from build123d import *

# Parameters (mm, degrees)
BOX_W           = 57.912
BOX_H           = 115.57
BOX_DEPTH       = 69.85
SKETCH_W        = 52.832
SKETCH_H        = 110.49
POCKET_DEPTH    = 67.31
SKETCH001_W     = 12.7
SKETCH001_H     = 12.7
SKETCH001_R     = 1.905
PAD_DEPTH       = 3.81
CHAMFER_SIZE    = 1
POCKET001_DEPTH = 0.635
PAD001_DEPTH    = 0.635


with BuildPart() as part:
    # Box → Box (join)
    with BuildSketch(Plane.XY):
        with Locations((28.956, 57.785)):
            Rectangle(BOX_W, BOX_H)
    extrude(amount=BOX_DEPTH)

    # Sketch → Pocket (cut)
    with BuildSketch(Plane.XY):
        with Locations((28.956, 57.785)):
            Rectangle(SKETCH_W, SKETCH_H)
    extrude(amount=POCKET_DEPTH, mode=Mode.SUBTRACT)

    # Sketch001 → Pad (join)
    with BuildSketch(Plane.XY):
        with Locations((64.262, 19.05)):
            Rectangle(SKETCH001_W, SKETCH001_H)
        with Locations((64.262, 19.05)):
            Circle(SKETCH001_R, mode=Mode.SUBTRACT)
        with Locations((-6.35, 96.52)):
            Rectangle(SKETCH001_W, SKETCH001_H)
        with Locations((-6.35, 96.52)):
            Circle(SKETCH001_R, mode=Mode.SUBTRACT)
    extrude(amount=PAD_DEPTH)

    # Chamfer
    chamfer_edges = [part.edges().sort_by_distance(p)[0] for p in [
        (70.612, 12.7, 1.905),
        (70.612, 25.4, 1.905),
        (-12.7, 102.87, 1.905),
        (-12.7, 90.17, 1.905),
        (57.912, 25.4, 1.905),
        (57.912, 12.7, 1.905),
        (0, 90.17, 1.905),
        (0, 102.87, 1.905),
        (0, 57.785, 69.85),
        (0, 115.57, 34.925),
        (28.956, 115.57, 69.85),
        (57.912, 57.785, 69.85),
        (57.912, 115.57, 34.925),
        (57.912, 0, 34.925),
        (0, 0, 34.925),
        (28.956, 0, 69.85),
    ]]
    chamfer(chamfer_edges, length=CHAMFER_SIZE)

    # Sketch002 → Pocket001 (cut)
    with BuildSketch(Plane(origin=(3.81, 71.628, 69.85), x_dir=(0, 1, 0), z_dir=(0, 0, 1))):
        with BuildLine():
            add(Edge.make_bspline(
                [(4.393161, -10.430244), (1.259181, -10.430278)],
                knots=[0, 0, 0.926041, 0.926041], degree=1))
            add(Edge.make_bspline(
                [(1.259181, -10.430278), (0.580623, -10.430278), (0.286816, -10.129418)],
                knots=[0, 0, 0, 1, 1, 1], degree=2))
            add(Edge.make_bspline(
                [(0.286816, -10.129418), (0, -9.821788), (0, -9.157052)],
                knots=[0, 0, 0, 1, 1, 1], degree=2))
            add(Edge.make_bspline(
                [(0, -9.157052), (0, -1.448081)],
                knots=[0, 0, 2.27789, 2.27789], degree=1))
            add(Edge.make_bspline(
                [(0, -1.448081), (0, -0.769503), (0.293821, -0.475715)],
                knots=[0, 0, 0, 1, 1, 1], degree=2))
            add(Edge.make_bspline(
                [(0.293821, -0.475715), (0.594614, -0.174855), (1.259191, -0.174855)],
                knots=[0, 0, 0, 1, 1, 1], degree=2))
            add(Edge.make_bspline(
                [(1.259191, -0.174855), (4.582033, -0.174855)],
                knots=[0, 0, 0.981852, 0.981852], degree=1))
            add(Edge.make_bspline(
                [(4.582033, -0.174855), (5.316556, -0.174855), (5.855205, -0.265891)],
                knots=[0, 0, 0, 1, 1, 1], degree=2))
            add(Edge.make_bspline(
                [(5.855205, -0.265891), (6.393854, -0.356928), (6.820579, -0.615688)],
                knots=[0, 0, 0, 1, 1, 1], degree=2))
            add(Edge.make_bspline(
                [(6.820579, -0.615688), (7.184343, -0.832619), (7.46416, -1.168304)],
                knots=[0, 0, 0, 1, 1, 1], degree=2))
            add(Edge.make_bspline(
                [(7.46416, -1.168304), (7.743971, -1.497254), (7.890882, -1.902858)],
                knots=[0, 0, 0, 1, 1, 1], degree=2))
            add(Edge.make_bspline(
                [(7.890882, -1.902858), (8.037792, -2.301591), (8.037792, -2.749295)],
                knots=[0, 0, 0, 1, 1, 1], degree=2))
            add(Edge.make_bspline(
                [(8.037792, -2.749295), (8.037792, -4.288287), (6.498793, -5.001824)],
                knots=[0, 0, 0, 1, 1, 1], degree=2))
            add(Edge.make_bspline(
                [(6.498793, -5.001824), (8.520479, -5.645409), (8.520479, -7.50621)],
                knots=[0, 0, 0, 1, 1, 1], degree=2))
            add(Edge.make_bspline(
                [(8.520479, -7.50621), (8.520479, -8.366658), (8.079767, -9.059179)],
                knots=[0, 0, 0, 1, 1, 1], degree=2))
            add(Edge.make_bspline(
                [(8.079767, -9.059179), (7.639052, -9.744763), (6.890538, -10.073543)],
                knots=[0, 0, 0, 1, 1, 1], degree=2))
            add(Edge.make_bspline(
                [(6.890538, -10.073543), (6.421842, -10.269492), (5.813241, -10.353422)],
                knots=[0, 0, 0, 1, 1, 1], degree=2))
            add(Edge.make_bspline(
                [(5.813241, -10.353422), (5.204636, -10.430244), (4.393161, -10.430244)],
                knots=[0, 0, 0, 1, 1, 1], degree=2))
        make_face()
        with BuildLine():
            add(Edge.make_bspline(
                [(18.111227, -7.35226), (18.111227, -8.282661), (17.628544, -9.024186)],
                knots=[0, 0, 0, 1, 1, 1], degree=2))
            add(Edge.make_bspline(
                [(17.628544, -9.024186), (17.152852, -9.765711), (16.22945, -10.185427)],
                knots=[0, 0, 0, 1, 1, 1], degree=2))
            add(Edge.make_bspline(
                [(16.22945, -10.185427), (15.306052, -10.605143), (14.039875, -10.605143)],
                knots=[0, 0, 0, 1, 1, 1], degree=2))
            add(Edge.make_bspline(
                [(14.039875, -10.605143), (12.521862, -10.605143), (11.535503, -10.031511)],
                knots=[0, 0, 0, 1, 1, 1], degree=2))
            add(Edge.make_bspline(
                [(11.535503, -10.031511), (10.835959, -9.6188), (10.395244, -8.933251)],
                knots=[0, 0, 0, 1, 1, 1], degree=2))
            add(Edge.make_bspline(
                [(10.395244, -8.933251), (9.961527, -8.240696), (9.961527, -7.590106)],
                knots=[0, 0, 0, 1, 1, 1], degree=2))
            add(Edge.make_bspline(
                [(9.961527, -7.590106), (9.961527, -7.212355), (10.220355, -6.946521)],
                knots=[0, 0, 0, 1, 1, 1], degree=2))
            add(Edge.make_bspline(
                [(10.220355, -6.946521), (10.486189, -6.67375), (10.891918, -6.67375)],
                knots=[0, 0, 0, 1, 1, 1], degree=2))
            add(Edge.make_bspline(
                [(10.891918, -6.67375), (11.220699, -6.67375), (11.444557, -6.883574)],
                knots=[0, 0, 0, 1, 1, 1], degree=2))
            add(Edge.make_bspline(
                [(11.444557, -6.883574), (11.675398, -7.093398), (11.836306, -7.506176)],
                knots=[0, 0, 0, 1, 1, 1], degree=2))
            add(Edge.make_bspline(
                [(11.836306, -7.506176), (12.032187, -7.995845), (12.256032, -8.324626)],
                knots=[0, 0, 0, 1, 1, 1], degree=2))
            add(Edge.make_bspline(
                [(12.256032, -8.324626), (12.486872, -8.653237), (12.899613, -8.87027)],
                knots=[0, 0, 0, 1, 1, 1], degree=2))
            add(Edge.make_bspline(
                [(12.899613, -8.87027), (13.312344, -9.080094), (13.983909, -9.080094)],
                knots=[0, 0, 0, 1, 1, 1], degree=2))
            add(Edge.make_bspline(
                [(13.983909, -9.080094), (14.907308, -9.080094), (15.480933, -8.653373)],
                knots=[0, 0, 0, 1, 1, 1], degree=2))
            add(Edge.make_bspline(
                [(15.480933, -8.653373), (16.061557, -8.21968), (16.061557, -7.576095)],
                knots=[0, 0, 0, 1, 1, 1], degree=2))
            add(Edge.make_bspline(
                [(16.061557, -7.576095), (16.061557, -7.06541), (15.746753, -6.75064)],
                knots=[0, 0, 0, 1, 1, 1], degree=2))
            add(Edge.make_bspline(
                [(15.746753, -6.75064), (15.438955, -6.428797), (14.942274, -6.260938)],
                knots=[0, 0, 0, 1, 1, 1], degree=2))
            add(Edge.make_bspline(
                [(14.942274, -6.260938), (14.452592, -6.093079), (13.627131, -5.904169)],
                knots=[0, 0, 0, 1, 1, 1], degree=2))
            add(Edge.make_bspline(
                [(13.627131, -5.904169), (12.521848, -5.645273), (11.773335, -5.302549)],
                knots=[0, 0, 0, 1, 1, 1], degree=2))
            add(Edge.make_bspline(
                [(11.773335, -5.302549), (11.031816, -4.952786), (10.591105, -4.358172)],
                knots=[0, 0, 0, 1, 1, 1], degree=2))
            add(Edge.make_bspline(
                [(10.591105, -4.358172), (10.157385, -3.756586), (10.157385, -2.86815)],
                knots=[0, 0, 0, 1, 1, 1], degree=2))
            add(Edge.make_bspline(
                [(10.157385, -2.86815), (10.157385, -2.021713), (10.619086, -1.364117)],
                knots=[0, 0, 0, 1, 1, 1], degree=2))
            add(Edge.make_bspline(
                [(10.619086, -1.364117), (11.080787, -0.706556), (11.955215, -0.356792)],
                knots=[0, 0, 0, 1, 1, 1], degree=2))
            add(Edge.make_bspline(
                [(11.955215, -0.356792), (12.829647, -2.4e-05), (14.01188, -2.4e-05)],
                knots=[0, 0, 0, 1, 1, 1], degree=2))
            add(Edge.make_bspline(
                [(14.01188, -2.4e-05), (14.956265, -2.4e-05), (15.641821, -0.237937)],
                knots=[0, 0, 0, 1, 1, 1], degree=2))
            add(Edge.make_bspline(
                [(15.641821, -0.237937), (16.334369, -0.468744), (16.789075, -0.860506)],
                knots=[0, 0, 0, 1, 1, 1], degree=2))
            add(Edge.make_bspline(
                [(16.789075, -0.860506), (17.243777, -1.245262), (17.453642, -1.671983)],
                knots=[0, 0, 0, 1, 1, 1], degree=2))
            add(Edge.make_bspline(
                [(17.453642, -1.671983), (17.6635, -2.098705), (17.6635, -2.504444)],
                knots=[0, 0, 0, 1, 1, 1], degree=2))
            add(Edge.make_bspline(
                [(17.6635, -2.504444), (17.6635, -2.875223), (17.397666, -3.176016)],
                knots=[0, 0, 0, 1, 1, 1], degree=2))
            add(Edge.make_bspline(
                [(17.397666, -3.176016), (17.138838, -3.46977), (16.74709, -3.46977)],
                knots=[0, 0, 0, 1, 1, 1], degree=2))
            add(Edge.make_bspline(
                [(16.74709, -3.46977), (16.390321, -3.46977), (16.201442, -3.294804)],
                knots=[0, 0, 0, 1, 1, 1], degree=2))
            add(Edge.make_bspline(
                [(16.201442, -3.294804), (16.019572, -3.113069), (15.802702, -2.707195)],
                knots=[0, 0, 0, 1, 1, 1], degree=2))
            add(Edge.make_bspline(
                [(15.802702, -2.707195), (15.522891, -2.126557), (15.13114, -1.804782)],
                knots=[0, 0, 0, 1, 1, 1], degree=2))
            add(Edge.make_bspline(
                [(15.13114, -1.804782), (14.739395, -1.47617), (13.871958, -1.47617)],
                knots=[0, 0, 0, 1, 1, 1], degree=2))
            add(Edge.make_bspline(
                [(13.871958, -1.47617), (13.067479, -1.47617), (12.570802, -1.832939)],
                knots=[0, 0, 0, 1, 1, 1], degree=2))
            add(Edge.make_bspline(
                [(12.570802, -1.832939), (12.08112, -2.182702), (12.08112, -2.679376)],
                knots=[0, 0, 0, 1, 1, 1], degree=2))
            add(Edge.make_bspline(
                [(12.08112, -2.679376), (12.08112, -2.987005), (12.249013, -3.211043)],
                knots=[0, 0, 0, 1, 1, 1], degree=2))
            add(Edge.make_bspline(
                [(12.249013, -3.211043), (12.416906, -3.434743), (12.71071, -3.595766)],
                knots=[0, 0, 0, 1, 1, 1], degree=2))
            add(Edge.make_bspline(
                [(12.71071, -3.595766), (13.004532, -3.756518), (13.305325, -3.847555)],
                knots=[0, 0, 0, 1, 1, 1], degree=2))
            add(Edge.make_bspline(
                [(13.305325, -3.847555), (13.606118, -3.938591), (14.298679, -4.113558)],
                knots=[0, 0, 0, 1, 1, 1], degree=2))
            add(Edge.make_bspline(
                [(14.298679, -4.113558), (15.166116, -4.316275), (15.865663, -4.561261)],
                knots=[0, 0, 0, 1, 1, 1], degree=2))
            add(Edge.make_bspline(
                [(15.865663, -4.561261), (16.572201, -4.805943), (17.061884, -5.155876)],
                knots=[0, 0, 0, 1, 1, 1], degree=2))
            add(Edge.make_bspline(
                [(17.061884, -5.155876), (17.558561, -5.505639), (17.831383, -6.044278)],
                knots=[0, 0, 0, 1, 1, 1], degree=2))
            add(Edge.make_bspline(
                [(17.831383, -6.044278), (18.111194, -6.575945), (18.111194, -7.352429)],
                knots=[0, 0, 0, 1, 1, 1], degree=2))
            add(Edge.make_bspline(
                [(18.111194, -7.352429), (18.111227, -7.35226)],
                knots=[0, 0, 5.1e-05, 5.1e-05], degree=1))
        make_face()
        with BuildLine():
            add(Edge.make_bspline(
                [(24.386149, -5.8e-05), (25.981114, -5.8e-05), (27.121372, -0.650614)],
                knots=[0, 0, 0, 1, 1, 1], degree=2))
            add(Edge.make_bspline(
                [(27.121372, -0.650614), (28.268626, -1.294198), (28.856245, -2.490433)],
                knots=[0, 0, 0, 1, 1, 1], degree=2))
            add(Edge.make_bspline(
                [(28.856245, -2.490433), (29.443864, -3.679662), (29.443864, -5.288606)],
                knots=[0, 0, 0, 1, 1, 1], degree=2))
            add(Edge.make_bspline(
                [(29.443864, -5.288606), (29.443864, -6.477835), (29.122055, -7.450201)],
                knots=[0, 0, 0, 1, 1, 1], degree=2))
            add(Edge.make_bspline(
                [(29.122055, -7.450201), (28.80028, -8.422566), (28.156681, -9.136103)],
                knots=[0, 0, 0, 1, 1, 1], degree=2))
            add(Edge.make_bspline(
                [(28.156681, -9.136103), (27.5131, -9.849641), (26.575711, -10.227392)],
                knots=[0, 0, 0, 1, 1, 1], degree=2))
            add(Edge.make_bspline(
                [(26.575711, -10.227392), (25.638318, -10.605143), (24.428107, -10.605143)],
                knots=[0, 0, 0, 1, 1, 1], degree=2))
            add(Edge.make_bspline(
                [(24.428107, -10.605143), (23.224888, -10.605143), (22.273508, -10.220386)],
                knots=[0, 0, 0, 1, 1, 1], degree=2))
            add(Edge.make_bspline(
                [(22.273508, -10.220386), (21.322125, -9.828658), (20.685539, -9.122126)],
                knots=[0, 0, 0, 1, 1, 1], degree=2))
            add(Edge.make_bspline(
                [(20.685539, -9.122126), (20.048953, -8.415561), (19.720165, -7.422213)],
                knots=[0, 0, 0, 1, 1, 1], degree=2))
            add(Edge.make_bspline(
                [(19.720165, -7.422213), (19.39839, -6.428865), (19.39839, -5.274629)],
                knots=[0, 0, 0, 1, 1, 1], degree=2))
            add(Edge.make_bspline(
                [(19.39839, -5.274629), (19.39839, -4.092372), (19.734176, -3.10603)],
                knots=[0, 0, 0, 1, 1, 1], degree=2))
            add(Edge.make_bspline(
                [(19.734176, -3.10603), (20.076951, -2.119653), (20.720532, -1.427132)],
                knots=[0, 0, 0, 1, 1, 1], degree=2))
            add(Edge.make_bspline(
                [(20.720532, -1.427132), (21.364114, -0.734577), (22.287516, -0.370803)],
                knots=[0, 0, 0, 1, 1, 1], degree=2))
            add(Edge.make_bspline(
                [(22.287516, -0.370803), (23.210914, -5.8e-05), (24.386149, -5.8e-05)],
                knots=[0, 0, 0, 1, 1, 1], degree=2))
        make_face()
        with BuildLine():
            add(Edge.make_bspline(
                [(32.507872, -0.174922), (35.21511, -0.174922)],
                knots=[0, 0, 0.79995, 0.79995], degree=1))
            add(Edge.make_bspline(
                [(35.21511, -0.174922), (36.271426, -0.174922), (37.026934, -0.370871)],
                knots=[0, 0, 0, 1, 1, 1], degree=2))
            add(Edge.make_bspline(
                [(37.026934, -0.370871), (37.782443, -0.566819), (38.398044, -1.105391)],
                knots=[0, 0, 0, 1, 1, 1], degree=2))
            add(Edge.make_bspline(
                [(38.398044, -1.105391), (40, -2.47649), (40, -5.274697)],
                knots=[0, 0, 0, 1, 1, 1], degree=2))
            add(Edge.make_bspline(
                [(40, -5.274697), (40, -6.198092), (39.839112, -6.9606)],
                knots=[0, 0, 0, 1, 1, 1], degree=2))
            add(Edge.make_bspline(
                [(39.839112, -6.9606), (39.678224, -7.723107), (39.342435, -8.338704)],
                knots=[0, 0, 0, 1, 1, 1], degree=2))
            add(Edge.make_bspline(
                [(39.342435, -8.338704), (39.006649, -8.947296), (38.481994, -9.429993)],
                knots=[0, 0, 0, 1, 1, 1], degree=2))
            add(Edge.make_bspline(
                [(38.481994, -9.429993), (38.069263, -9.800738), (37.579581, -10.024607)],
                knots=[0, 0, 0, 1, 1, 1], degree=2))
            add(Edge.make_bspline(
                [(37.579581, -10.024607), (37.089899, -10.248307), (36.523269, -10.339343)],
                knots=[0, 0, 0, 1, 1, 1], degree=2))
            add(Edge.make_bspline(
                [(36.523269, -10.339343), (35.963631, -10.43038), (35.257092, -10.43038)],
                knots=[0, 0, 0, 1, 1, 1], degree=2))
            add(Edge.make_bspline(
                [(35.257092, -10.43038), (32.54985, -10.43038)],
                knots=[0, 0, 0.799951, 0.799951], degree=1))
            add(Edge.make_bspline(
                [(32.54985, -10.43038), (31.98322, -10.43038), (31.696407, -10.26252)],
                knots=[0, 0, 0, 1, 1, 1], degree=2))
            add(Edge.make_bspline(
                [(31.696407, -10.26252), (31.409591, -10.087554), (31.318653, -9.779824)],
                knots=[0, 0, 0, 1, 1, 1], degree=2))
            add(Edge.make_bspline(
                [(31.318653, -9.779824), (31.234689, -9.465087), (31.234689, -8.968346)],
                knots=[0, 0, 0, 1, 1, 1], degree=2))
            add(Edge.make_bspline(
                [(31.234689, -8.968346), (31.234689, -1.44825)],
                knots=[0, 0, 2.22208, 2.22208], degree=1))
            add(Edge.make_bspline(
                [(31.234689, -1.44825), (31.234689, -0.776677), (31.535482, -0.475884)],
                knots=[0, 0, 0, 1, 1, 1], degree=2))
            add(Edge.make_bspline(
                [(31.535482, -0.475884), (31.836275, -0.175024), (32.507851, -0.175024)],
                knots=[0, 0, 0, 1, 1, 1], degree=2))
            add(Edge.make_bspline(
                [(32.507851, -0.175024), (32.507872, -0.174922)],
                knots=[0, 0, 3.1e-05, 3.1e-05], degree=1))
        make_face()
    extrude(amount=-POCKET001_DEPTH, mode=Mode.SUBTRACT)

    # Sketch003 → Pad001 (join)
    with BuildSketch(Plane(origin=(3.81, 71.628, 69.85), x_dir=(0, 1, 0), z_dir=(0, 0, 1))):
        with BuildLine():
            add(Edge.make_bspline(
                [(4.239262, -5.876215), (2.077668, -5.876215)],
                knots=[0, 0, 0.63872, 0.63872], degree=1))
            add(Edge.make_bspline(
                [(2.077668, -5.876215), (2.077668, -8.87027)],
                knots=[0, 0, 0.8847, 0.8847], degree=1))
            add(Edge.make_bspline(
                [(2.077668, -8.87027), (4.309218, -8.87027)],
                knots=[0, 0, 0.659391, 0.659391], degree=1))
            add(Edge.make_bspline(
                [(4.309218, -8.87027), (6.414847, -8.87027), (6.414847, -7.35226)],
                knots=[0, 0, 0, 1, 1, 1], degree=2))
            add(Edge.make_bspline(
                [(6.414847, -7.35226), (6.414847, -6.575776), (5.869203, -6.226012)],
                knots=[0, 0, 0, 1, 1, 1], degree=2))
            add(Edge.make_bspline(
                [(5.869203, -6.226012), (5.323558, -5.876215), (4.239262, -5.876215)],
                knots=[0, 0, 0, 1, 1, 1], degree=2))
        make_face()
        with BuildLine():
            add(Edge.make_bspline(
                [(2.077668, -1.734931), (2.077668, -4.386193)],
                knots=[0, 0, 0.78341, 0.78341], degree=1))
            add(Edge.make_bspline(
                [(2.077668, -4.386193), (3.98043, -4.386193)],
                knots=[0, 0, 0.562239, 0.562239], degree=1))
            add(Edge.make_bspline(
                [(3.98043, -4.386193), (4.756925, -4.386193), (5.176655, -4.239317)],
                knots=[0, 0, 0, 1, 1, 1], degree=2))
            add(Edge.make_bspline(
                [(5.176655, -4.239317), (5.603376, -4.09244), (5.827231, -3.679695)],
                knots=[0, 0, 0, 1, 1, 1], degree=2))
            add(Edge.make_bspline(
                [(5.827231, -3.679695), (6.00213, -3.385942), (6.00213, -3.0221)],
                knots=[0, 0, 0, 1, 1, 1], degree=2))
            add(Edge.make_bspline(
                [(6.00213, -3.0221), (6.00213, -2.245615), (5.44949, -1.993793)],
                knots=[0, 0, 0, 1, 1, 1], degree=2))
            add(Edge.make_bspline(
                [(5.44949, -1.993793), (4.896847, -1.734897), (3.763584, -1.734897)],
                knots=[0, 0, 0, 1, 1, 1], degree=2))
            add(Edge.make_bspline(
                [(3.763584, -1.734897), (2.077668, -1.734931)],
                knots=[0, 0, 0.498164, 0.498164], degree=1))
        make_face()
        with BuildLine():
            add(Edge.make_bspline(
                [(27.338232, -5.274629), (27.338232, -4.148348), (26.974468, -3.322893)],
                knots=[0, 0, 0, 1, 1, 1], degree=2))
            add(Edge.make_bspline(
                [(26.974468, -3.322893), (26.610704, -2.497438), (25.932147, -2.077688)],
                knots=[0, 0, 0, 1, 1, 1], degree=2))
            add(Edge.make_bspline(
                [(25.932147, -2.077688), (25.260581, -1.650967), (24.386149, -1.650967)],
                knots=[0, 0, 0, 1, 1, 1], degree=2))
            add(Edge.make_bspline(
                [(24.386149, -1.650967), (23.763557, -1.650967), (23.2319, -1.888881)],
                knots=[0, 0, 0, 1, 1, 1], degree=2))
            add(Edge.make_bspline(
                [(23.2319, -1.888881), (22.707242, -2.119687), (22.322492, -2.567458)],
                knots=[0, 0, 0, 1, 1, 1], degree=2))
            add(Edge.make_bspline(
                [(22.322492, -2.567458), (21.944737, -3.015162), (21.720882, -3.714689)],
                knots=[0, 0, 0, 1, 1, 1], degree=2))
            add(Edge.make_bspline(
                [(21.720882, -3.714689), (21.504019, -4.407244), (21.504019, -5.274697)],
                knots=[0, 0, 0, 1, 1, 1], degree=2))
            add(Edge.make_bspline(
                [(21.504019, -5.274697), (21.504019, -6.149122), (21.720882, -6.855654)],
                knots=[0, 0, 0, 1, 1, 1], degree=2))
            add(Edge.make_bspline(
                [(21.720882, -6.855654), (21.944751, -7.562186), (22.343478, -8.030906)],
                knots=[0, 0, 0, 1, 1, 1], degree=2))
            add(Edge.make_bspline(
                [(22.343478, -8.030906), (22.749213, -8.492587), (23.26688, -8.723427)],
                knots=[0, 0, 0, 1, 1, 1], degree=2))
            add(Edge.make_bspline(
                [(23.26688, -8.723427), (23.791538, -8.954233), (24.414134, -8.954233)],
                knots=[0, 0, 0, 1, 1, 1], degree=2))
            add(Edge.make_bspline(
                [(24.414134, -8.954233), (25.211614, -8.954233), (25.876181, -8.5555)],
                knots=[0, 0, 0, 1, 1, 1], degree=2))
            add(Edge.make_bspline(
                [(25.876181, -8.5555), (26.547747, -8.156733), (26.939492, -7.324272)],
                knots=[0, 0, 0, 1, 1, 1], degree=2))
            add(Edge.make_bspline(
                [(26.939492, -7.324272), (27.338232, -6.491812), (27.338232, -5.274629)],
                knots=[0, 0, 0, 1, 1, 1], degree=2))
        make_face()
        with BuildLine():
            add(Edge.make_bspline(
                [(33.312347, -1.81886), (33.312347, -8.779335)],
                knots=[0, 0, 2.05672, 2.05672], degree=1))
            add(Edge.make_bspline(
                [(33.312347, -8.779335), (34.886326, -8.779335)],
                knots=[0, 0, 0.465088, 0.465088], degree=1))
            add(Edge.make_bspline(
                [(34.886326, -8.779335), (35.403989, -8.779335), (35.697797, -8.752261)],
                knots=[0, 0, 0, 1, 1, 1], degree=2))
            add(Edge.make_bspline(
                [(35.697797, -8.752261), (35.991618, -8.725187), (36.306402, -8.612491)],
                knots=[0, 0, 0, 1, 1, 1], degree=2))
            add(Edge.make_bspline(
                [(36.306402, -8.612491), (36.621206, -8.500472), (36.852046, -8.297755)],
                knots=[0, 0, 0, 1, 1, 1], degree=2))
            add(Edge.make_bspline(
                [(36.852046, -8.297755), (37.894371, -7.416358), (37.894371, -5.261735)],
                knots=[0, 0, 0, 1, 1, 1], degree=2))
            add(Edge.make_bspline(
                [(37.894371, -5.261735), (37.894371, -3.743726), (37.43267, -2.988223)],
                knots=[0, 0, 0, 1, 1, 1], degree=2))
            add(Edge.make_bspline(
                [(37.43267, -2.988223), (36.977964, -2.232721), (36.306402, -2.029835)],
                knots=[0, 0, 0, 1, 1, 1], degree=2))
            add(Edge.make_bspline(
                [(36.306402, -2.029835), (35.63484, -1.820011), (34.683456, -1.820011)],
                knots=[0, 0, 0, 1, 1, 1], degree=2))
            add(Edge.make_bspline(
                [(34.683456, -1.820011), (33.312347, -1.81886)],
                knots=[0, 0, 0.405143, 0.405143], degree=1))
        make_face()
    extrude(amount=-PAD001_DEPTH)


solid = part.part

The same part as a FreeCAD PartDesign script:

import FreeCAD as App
import Part
import Sketcher
from FreeCAD import Vector
Q = App.Units.Quantity


def edges_at(feature, points):
    """Names of the edges that pass closest to the given points."""
    edges = feature.Shape.Edges
    near = lambda p: min(range(len(edges)), key=lambda i: edges[i].distToShape(Part.Vertex(*p))[0])
    return sorted({f"Edge{near(p) + 1}" for p in points})


def add_polygon(sketch, points):
    """Adds a closed chain of lines whose ends are joined by coincident constraints."""
    first, n = sketch.GeometryCount, len(points)
    for a, b in zip(points, points[1:] + points[:1]):
        sketch.addGeometry(Part.LineSegment(App.Vector(*a, 0), App.Vector(*b, 0)), False)
    for i in range(n):
        sketch.addConstraint(Sketcher.Constraint("Coincident", first + i, 2, first + (i + 1) % n, 1))

doc = App.newDocument("Part")
body = doc.addObject("PartDesign::Body", "Body")

# Sketch on XY plane
sketch1 = body.newObject("Sketcher::SketchObject", "Sketch")
sketch1.AttachmentSupport = (doc.getObject("XY_Plane"), [""])
sketch1.MapMode = "FlatFace"
add_polygon(sketch1, [(0, 115.57), (0, 0), (57.912, 0), (57.912, 115.57)])  # lines 0-3
sketch1.addConstraint(Sketcher.Constraint("Vertical", 0))
sketch1.addConstraint(Sketcher.Constraint("Horizontal", 1))
sketch1.addConstraint(Sketcher.Constraint("Vertical", 2))
sketch1.addConstraint(Sketcher.Constraint("Horizontal", 3))
sketch1.addConstraint(Sketcher.Constraint("Coincident", 0, 2, -1, 1))
sketch1.addConstraint(Sketcher.Constraint("DistanceX", 1, 1, 1, 2, Q("2.28 in")))
sketch1.addConstraint(Sketcher.Constraint("DistanceY", 0, 2, 0, 1, Q("4.55 in")))
pad1 = body.newObject("PartDesign::Pad", "Pad")
pad1.Profile = sketch1
pad1.Length = Q("2.75 in")

# Sketch on XY plane
sketch2 = body.newObject("Sketcher::SketchObject", "Sketch001")
sketch2.AttachmentSupport = (doc.getObject("XY_Plane"), [""])
sketch2.MapMode = "FlatFace"
add_polygon(sketch2, [(2.54, 113.03), (2.54, 2.54), (55.372, 2.54), (55.372, 113.03)])  # lines 0-3
sketch2.addConstraint(Sketcher.Constraint("Vertical", 0))
sketch2.addConstraint(Sketcher.Constraint("Horizontal", 1))
sketch2.addConstraint(Sketcher.Constraint("Vertical", 2))
sketch2.addConstraint(Sketcher.Constraint("Horizontal", 3))
sketch2.addConstraint(Sketcher.Constraint("DistanceX", 1, 1, 1, 2, Q("2.08 in")))
sketch2.addConstraint(Sketcher.Constraint("DistanceY", 0, 2, 0, 1, Q("4.35 in")))
sketch2.addConstraint(Sketcher.Constraint("DistanceX", -1, 1, 0, 2, Q("0.1 in")))
sketch2.addConstraint(Sketcher.Constraint("DistanceY", -1, 1, 0, 2, Q("0.1 in")))
pocket1 = body.newObject("PartDesign::Pocket", "Pocket")
pocket1.Profile = sketch2
pocket1.Length = Q("2.65 in")
pocket1.Reversed = True

# Sketch on XY plane
sketch3 = body.newObject("Sketcher::SketchObject", "Sketch002")
sketch3.AttachmentSupport = (doc.getObject("XY_Plane"), [""])
sketch3.MapMode = "FlatFace"
add_polygon(sketch3, [(57.912, 25.4), (57.912, 12.7), (70.612, 12.7), (70.612, 25.4)])  # lines 0-3
sketch3.addGeometry(Part.Circle(Vector(64.262, 19.05, 0), Vector(0, 0, 1), 1.905), False)  # 4
add_polygon(sketch3, [(-12.7, 102.87), (-12.7, 90.17), (0, 90.17), (0, 102.87)])  # lines 5-8
sketch3.addGeometry(Part.Circle(Vector(-6.35, 96.52, 0), Vector(0, 0, 1), 1.905), False)  # 9
sketch3.addConstraint(Sketcher.Constraint("Vertical", 0))
sketch3.addConstraint(Sketcher.Constraint("Horizontal", 1))
sketch3.addConstraint(Sketcher.Constraint("Vertical", 2))
sketch3.addConstraint(Sketcher.Constraint("Horizontal", 3))
sketch3.addConstraint(Sketcher.Constraint("Vertical", 5))
sketch3.addConstraint(Sketcher.Constraint("Horizontal", 6))
sketch3.addConstraint(Sketcher.Constraint("Vertical", 7))
sketch3.addConstraint(Sketcher.Constraint("Horizontal", 8))
sketch3.addConstraint(Sketcher.Constraint("Equal", 4, 9))
sketch3.addConstraint(Sketcher.Constraint("PointOnObject", 6, 2, -2))
sketch3.addConstraint(Sketcher.Constraint("Equal", 3, 6))
sketch3.addConstraint(Sketcher.Constraint("Equal", 8, 0))
sketch3.addConstraint(Sketcher.Constraint("Equal", 2, 5))
sketch3.addConstraint(Sketcher.Constraint("Diameter", 4, Q("0.15 in")))
sketch3.addConstraint(Sketcher.Constraint("DistanceX", 1, 1, 1, 2, Q("0.5 in")))
sketch3.addConstraint(Sketcher.Constraint("DistanceY", -1, 1, 2, 2, Q("1 in")))
sketch3.addConstraint(Sketcher.Constraint("DistanceY", -1, 1, 9, 3, Q("3.8 in")))
sketch3.addConstraint(Sketcher.Constraint("DistanceY", 4, 3, 5, 2, Q("2.8 in")))
sketch3.addConstraint(Sketcher.Constraint("DistanceX", -1, 1, 4, 3, Q("2.53 in")))
sketch3.addConstraint(Sketcher.Constraint("DistanceY", -1, 1, 4, 3, Q("0.75 in")))
sketch3.addConstraint(Sketcher.Constraint("DistanceX", 9, 3, -1, 1, Q("0.25 in")))
sketch3.addConstraint(Sketcher.Constraint("DistanceX", -1, 1, 0, 2, Q("2.28 in")))
pad2 = body.newObject("PartDesign::Pad", "Pad001")
pad2.Profile = sketch3
pad2.Length = Q("0.15 in")
doc.recompute()

chamfer = body.newObject("PartDesign::Chamfer", "Chamfer")
chamfer.Base = (pad2, edges_at(pad2, [
    (70.612, 12.7, 1.905),
    (70.612, 25.4, 1.905),
    (-12.7, 102.87, 1.905),
    (-12.7, 90.17, 1.905),
    (57.912, 25.4, 1.905),
    (57.912, 12.7, 1.905),
    (0, 90.17, 1.905),
    (0, 102.87, 1.905),
    (0, 57.785, 69.85),
    (0, 115.57, 34.925),
    (28.956, 115.57, 69.85),
    (57.912, 57.785, 69.85),
    (57.912, 115.57, 34.925),
    (57.912, 0, 34.925),
    (0, 0, 34.925),
    (28.956, 0, 69.85),
]))
chamfer.Size = 1

# Sketch on XY plane
sketch4 = body.newObject("Sketcher::SketchObject", "Sketch003")
sketch4.AttachmentSupport = (doc.getObject("XY_Plane"), [""])
sketch4.MapMode = "FlatFace"
sketch4.AttachmentOffset = App.Placement(Vector(0, 0, 2.75 * 25.4), App.Rotation())
sketch4.addGeometry(Part.BSplineCurve([Vector(14.240244, 76.021161, 0), Vector(14.240278, 72.887181, 0)], [2, 2], [0, 0.926041], False, 1, [1, 1], False), False)
sketch4.addGeometry(Part.BSplineCurve([Vector(14.163422, 77.441241, 0), Vector(14.240244, 76.832636, 0), Vector(14.240244, 76.021161, 0)], [3, 3], [0, 1], False, 2, [1, 1, 1], False), False)
sketch4.addGeometry(Part.BSplineCurve([Vector(13.883543, 78.518538, 0), Vector(14.079492, 78.049842, 0), Vector(14.163422, 77.441241, 0)], [3, 3], [0, 1], False, 2, [1, 1, 1], False), False)
sketch4.addGeometry(Part.BSplineCurve([Vector(12.869179, 79.707767, 0), Vector(13.554763, 79.267052, 0), Vector(13.883543, 78.518538, 0)], [3, 3], [0, 1], False, 2, [1, 1, 1], False), False)
sketch4.addGeometry(Part.BSplineCurve([Vector(8.811824, 78.126793, 0), Vector(9.455409, 80.148479, 0), Vector(12.176658, 80.148479, 0), Vector(12.869179, 79.707767, 0)], [3, 1, 3], [0, 1, 1.462407318], False, 2, [1, 1, 1, 1], False), False)
sketch4.addGeometry(Part.BSplineCurve([Vector(5.712858, 79.518882, 0), Vector(6.111591, 79.665792, 0), Vector(8.098287, 79.665792, 0), Vector(8.811824, 78.126793, 0)], [3, 1, 3], [0, 1, 4.437521219], False, 2, [1, 1, 1, 1], False), False)
sketch4.addGeometry(Part.BSplineCurve([Vector(4.978304, 79.09216, 0), Vector(5.307254, 79.371971, 0), Vector(5.712858, 79.518882, 0)], [3, 3], [0, 1], False, 2, [1, 1, 1], False), False)
sketch4.addGeometry(Part.BSplineCurve([Vector(4.425688, 78.448579, 0), Vector(4.642619, 78.812343, 0), Vector(4.978304, 79.09216, 0)], [3, 3], [0, 1], False, 2, [1, 1, 1], False), False)
sketch4.addGeometry(Part.BSplineCurve([Vector(4.075891, 77.483205, 0), Vector(4.166928, 78.021854, 0), Vector(4.425688, 78.448579, 0)], [3, 3], [0, 1], False, 2, [1, 1, 1], False), False)
sketch4.addGeometry(Part.BSplineCurve([Vector(4.285715, 71.921821, 0), Vector(3.984855, 72.222614, 0), Vector(3.984855, 74.548612, 0), Vector(3.984855, 76.944556, 0), Vector(4.075891, 77.483205, 0)], [3, 1, 1, 3], [0, 1, 3.499967649, 4.605216551], False, 2, [1, 1, 1, 1, 1], False), False)
sketch4.addGeometry(Part.BSplineCurve([Vector(13.939418, 71.914816, 0), Vector(13.631788, 71.628, 0), Vector(9.112566, 71.628, 0), Vector(4.579503, 71.628, 0), Vector(4.285715, 71.921821, 0)], [3, 1, 1, 3], [0, 1, 6.798520766, 7.81934407], False, 2, [1, 1, 1, 1, 1], False), False)
sketch4.addGeometry(Part.BSplineCurve([Vector(14.240278, 72.887181, 0), Vector(14.240278, 72.208623, 0), Vector(13.939418, 71.914816, 0)], [3, 3], [0, 1], False, 2, [1, 1, 1], False), False)
sketch4.addGeometry(Part.BSplineCurve([Vector(11.16226, 89.739227, 0), Vector(12.092661, 89.739227, 0), Vector(12.834186, 89.256544, 0)], [3, 3], [0, 1], False, 2, [1, 1, 1], False), False)
sketch4.addGeometry(Part.BSplineCurve([Vector(11.162429, 89.739194, 0), Vector(11.16226, 89.739227, 0)], [2, 2], [0, 0.000051], False, 1, [1, 1], False), False)
sketch4.addGeometry(Part.BSplineCurve([Vector(9.854278, 89.459383, 0), Vector(10.385945, 89.739194, 0), Vector(11.162429, 89.739194, 0)], [3, 3], [0, 1], False, 2, [1, 1, 1], False), False)
sketch4.addGeometry(Part.BSplineCurve([Vector(8.965876, 88.689884, 0), Vector(9.315639, 89.186561, 0), Vector(9.854278, 89.459383, 0)], [3, 3], [0, 1], False, 2, [1, 1, 1], False), False)
sketch4.addGeometry(Part.BSplineCurve([Vector(8.371261, 87.493663, 0), Vector(8.615943, 88.200201, 0), Vector(8.965876, 88.689884, 0)], [3, 3], [0, 1], False, 2, [1, 1, 1], False), False)
sketch4.addGeometry(Part.BSplineCurve([Vector(7.923558, 85.926679, 0), Vector(8.126275, 86.794116, 0), Vector(8.371261, 87.493663, 0)], [3, 3], [0, 1], False, 2, [1, 1, 1], False), False)
sketch4.addGeometry(Part.BSplineCurve([Vector(7.657555, 84.933325, 0), Vector(7.748591, 85.234118, 0), Vector(7.923558, 85.926679, 0)], [3, 3], [0, 1], False, 2, [1, 1, 1], False), False)
sketch4.addGeometry(Part.BSplineCurve([Vector(7.405766, 84.33871, 0), Vector(7.566518, 84.632532, 0), Vector(7.657555, 84.933325, 0)], [3, 3], [0, 1], False, 2, [1, 1, 1], False), False)
sketch4.addGeometry(Part.BSplineCurve([Vector(7.021043, 83.877013, 0), Vector(7.244743, 84.044906, 0), Vector(7.405766, 84.33871, 0)], [3, 3], [0, 1], False, 2, [1, 1, 1], False), False)
sketch4.addGeometry(Part.BSplineCurve([Vector(5.642939, 84.198802, 0), Vector(5.992702, 83.70912, 0), Vector(6.797005, 83.70912, 0), Vector(7.021043, 83.877013, 0)], [3, 1, 3], [0, 1, 1.619378103], False, 2, [1, 1, 1, 1], False), False)
sketch4.addGeometry(Part.BSplineCurve([Vector(5.614782, 86.75914, 0), Vector(5.28617, 86.367395, 0), Vector(5.28617, 84.695479, 0), Vector(5.642939, 84.198802, 0)], [3, 1, 3], [0, 1, 1.927420666], False, 2, [1, 1, 1, 1], False), False)
sketch4.addGeometry(Part.BSplineCurve([Vector(6.517195, 87.430702, 0), Vector(5.936557, 87.150891, 0), Vector(5.614782, 86.75914, 0)], [3, 3], [0, 1], False, 2, [1, 1, 1], False), False)
sketch4.addGeometry(Part.BSplineCurve([Vector(7.104804, 87.829442, 0), Vector(6.923069, 87.647572, 0), Vector(6.517195, 87.430702, 0)], [3, 3], [0, 1], False, 2, [1, 1, 1], False), False)
sketch4.addGeometry(Part.BSplineCurve([Vector(6.986016, 89.025666, 0), Vector(7.27977, 88.766838, 0), Vector(7.27977, 88.018321, 0), Vector(7.104804, 87.829442, 0)], [3, 1, 3], [0, 1, 1.910710457], False, 2, [1, 1, 1, 1], False), False)
sketch4.addGeometry(Part.BSplineCurve([Vector(5.481983, 89.081642, 0), Vector(5.908705, 89.2915, 0), Vector(6.685223, 89.2915, 0), Vector(6.986016, 89.025666, 0)], [3, 1, 3], [0, 1, 1.913836235], False, 2, [1, 1, 1, 1], False), False)
sketch4.addGeometry(Part.BSplineCurve([Vector(4.670506, 88.417075, 0), Vector(5.055262, 88.871777, 0), Vector(5.481983, 89.081642, 0)], [3, 3], [0, 1], False, 2, [1, 1, 1], False), False)
sketch4.addGeometry(Part.BSplineCurve([Vector(4.047937, 87.269821, 0), Vector(4.278744, 87.962369, 0), Vector(4.670506, 88.417075, 0)], [3, 3], [0, 1], False, 2, [1, 1, 1], False), False)
sketch4.addGeometry(Part.BSplineCurve([Vector(4.166792, 83.583215, 0), Vector(3.810024, 84.457647, 0), Vector(3.810024, 86.584265, 0), Vector(4.047937, 87.269821, 0)], [3, 1, 3], [0, 1, 1.798814616], False, 2, [1, 1, 1, 1], False), False)
sketch4.addGeometry(Part.BSplineCurve([Vector(5.174117, 82.247086, 0), Vector(4.516556, 82.708787, 0), Vector(4.166792, 83.583215, 0)], [3, 3], [0, 1], False, 2, [1, 1, 1], False), False)
sketch4.addGeometry(Part.BSplineCurve([Vector(8.168172, 82.219105, 0), Vector(7.566586, 81.785385, 0), Vector(5.831713, 81.785385, 0), Vector(5.174117, 82.247086, 0)], [3, 1, 3], [0, 1, 1.952727039], False, 2, [1, 1, 1, 1], False), False)
sketch4.addGeometry(Part.BSplineCurve([Vector(9.112549, 83.401335, 0), Vector(8.762786, 82.659816, 0), Vector(8.168172, 82.219105, 0)], [3, 3], [0, 1], False, 2, [1, 1, 1], False), False)
sketch4.addGeometry(Part.BSplineCurve([Vector(9.714169, 85.255131, 0), Vector(9.455273, 84.149848, 0), Vector(9.112549, 83.401335, 0)], [3, 3], [0, 1], False, 2, [1, 1, 1], False), False)
sketch4.addGeometry(Part.BSplineCurve([Vector(10.070938, 86.570274, 0), Vector(9.903079, 86.080592, 0), Vector(9.714169, 85.255131, 0)], [3, 3], [0, 1], False, 2, [1, 1, 1], False), False)
sketch4.addGeometry(Part.BSplineCurve([Vector(10.56064, 87.374753, 0), Vector(10.238797, 87.066955, 0), Vector(10.070938, 86.570274, 0)], [3, 3], [0, 1], False, 2, [1, 1, 1], False), False)
sketch4.addGeometry(Part.BSplineCurve([Vector(12.463373, 87.108933, 0), Vector(12.02968, 87.689557, 0), Vector(10.87541, 87.689557, 0), Vector(10.56064, 87.374753, 0)], [3, 1, 3], [0, 1, 1.79350047], False, 2, [1, 1, 1, 1], False), False)
sketch4.addGeometry(Part.BSplineCurve([Vector(12.68027, 84.527613, 0), Vector(12.890094, 84.940344, 0), Vector(12.890094, 86.535308, 0), Vector(12.463373, 87.108933, 0)], [3, 1, 3], [0, 1, 2.374995719], False, 2, [1, 1, 1, 1], False), False)
sketch4.addGeometry(Part.BSplineCurve([Vector(12.134626, 83.884032, 0), Vector(12.463237, 84.114872, 0), Vector(12.68027, 84.527613, 0)], [3, 3], [0, 1], False, 2, [1, 1, 1], False), False)
sketch4.addGeometry(Part.BSplineCurve([Vector(11.316176, 83.464306, 0), Vector(11.805845, 83.660187, 0), Vector(12.134626, 83.884032, 0)], [3, 3], [0, 1], False, 2, [1, 1, 1], False), False)
sketch4.addGeometry(Part.BSplineCurve([Vector(10.693574, 83.072557, 0), Vector(10.903398, 83.303398, 0), Vector(11.316176, 83.464306, 0)], [3, 3], [0, 1], False, 2, [1, 1, 1], False), False)
sketch4.addGeometry(Part.BSplineCurve([Vector(10.756521, 81.848355, 0), Vector(10.48375, 82.114189, 0), Vector(10.48375, 82.848699, 0), Vector(10.693574, 83.072557, 0)], [3, 1, 3], [0, 1, 1.810346315], False, 2, [1, 1, 1, 1], False), False)
sketch4.addGeometry(Part.BSplineCurve([Vector(12.743251, 82.023244, 0), Vector(12.050696, 81.589527, 0), Vector(11.022355, 81.589527, 0), Vector(10.756521, 81.848355, 0)], [3, 1, 3], [0, 1, 1.580628353], False, 2, [1, 1, 1, 1], False), False)
sketch4.addGeometry(Part.BSplineCurve([Vector(13.841511, 83.163503, 0), Vector(13.4288, 82.463959, 0), Vector(12.743251, 82.023244, 0)], [3, 3], [0, 1], False, 2, [1, 1, 1], False), False)
sketch4.addGeometry(Part.BSplineCurve([Vector(13.995427, 87.85745, 0), Vector(14.415143, 86.934052, 0), Vector(14.415143, 84.149862, 0), Vector(13.841511, 83.163503, 0)], [3, 1, 3], [0, 1, 2.198894783], False, 2, [1, 1, 1, 1], False), False)
sketch4.addGeometry(Part.BSplineCurve([Vector(12.834186, 89.256544, 0), Vector(13.575711, 88.780852, 0), Vector(13.995427, 87.85745, 0)], [3, 3], [0, 1], False, 2, [1, 1, 1], False), False)
sketch4.addGeometry(Part.BSplineCurve([Vector(4.460614, 98.749372, 0), Vector(5.104198, 99.896626, 0), Vector(6.300433, 100.484245, 0)], [3, 3], [0, 1], False, 2, [1, 1, 1], False), False)
sketch4.addGeometry(Part.BSplineCurve([Vector(4.180803, 93.915516, 0), Vector(3.810058, 94.838914, 0), Vector(3.810058, 97.609114, 0), Vector(4.460614, 98.749372, 0)], [3, 1, 3], [0, 1, 2.357145592], False, 2, [1, 1, 1, 1], False), False)
sketch4.addGeometry(Part.BSplineCurve([Vector(5.237132, 92.348532, 0), Vector(4.544577, 92.992114, 0), Vector(4.180803, 93.915516, 0)], [3, 3], [0, 1], False, 2, [1, 1, 1], False), False)
sketch4.addGeometry(Part.BSplineCurve([Vector(6.91603, 91.362176, 0), Vector(5.929653, 91.704951, 0), Vector(5.237132, 92.348532, 0)], [3, 3], [0, 1], False, 2, [1, 1, 1], False), False)
sketch4.addGeometry(Part.BSplineCurve([Vector(11.232213, 91.348165, 0), Vector(10.238865, 91.02639, 0), Vector(7.902372, 91.02639, 0), Vector(6.91603, 91.362176, 0)], [3, 1, 3], [0, 1, 2.024276664], False, 2, [1, 1, 1, 1], False), False)
sketch4.addGeometry(Part.BSplineCurve([Vector(12.932126, 92.313539, 0), Vector(12.225561, 91.676953, 0), Vector(11.232213, 91.348165, 0)], [3, 3], [0, 1], False, 2, [1, 1, 1], False), False)
sketch4.addGeometry(Part.BSplineCurve([Vector(14.030386, 93.901508, 0), Vector(13.638658, 92.950125, 0), Vector(12.932126, 92.313539, 0)], [3, 3], [0, 1], False, 2, [1, 1, 1], False), False)
sketch4.addGeometry(Part.BSplineCurve([Vector(14.037392, 98.203711, 0), Vector(14.415143, 97.266318, 0), Vector(14.415143, 94.852888, 0), Vector(14.030386, 93.901508, 0)], [3, 1, 3], [0, 1, 1.994222495], False, 2, [1, 1, 1, 1], False), False)
sketch4.addGeometry(Part.BSplineCurve([Vector(12.946103, 99.784681, 0), Vector(13.659641, 99.1411, 0), Vector(14.037392, 98.203711, 0)], [3, 3], [0, 1], False, 2, [1, 1, 1], False), False)
sketch4.addGeometry(Part.BSplineCurve([Vector(11.260201, 100.750055, 0), Vector(12.232566, 100.42828, 0), Vector(12.946103, 99.784681, 0)], [3, 3], [0, 1], False, 2, [1, 1, 1], False), False)
sketch4.addGeometry(Part.BSplineCurve([Vector(6.300433, 100.484245, 0), Vector(7.489662, 101.071864, 0), Vector(10.287835, 101.071864, 0), Vector(11.260201, 100.750055, 0)], [3, 1, 3], [0, 1, 1.739136353], False, 2, [1, 1, 1, 1], False), False)
sketch4.addGeometry(Part.BSplineCurve([Vector(3.984922, 104.135872, 0), Vector(3.984922, 105.489491, 0), Vector(3.984922, 107.899426, 0), Vector(4.180871, 108.654934, 0)], [3, 1, 3], [0, 0.79995, 1.424202455], False, 2, [1, 1, 1, 1], False), False)
sketch4.addGeometry(Part.BSplineCurve([Vector(3.985024, 104.135851, 0), Vector(3.984922, 104.135872, 0)], [2, 2], [0, 0.000031], False, 1, [1, 1], False), False)
sketch4.addGeometry(Part.BSplineCurve([Vector(4.285884, 103.163482, 0), Vector(3.985024, 103.464275, 0), Vector(3.985024, 104.135851, 0)], [3, 3], [0, 1], False, 2, [1, 1, 1], False), False)
sketch4.addGeometry(Part.BSplineCurve([Vector(13.589824, 102.946653, 0), Vector(13.275087, 102.862689, 0), Vector(9.018298, 102.862689, 0), Vector(4.586677, 102.862689, 0), Vector(4.285884, 103.163482, 0)], [3, 1, 1, 3], [0, 1, 8.569433568, 9.921391631], False, 2, [1, 1, 1, 1, 1], False), False)
sketch4.addGeometry(Part.BSplineCurve([Vector(14.07252, 103.324407, 0), Vector(13.897554, 103.037591, 0), Vector(13.589824, 102.946653, 0)], [3, 3], [0, 1], False, 2, [1, 1, 1], False), False)
sketch4.addGeometry(Part.BSplineCurve([Vector(14.149343, 108.151269, 0), Vector(14.24038, 107.591631, 0), Vector(14.24038, 105.531471, 0), Vector(14.24038, 103.61122, 0), Vector(14.07252, 103.324407, 0)], [3, 1, 1, 3], [0, 1, 2.915847533, 3.717827324], False, 2, [1, 1, 1, 1, 1], False), False)
sketch4.addGeometry(Part.BSplineCurve([Vector(13.834607, 109.207581, 0), Vector(14.058307, 108.717899, 0), Vector(14.149343, 108.151269, 0)], [3, 3], [0, 1], False, 2, [1, 1, 1], False), False)
sketch4.addGeometry(Part.BSplineCurve([Vector(13.239993, 110.109994, 0), Vector(13.610738, 109.697263, 0), Vector(13.834607, 109.207581, 0)], [3, 3], [0, 1], False, 2, [1, 1, 1], False), False)
sketch4.addGeometry(Part.BSplineCurve([Vector(12.148704, 110.970435, 0), Vector(12.757296, 110.634649, 0), Vector(13.239993, 110.109994, 0)], [3, 3], [0, 1], False, 2, [1, 1, 1], False), False)
sketch4.addGeometry(Part.BSplineCurve([Vector(10.7706, 111.467112, 0), Vector(11.533107, 111.306224, 0), Vector(12.148704, 110.970435, 0)], [3, 3], [0, 1], False, 2, [1, 1, 1], False), False)
sketch4.addGeometry(Part.BSplineCurve([Vector(4.915391, 110.026044, 0), Vector(6.28649, 111.628, 0), Vector(10.008092, 111.628, 0), Vector(10.7706, 111.467112, 0)], [3, 1, 3], [0, 1, 1.329995243], False, 2, [1, 1, 1, 1], False), False)
sketch4.addGeometry(Part.BSplineCurve([Vector(4.180871, 108.654934, 0), Vector(4.376819, 109.410443, 0), Vector(4.915391, 110.026044, 0)], [3, 3], [0, 1], False, 2, [1, 1, 1], False), False)
sketch4.addConstraint(Sketcher.Constraint("Block", 0))
sketch4.addConstraint(Sketcher.Constraint("Block", 1))
sketch4.addConstraint(Sketcher.Constraint("Block", 2))
sketch4.addConstraint(Sketcher.Constraint("Block", 3))
sketch4.addConstraint(Sketcher.Constraint("Block", 4))
sketch4.addConstraint(Sketcher.Constraint("Block", 5))
sketch4.addConstraint(Sketcher.Constraint("Block", 6))
sketch4.addConstraint(Sketcher.Constraint("Block", 7))
sketch4.addConstraint(Sketcher.Constraint("Block", 8))
sketch4.addConstraint(Sketcher.Constraint("Block", 9))
sketch4.addConstraint(Sketcher.Constraint("Block", 10))
sketch4.addConstraint(Sketcher.Constraint("Block", 11))
sketch4.addConstraint(Sketcher.Constraint("Block", 12))
sketch4.addConstraint(Sketcher.Constraint("Block", 13))
sketch4.addConstraint(Sketcher.Constraint("Block", 14))
sketch4.addConstraint(Sketcher.Constraint("Block", 15))
sketch4.addConstraint(Sketcher.Constraint("Block", 16))
sketch4.addConstraint(Sketcher.Constraint("Block", 17))
sketch4.addConstraint(Sketcher.Constraint("Block", 18))
sketch4.addConstraint(Sketcher.Constraint("Block", 19))
sketch4.addConstraint(Sketcher.Constraint("Block", 20))
sketch4.addConstraint(Sketcher.Constraint("Block", 21))
sketch4.addConstraint(Sketcher.Constraint("Block", 22))
sketch4.addConstraint(Sketcher.Constraint("Block", 23))
sketch4.addConstraint(Sketcher.Constraint("Block", 24))
sketch4.addConstraint(Sketcher.Constraint("Block", 25))
sketch4.addConstraint(Sketcher.Constraint("Block", 26))
sketch4.addConstraint(Sketcher.Constraint("Block", 27))
sketch4.addConstraint(Sketcher.Constraint("Block", 28))
sketch4.addConstraint(Sketcher.Constraint("Block", 29))
sketch4.addConstraint(Sketcher.Constraint("Block", 30))
sketch4.addConstraint(Sketcher.Constraint("Block", 31))
sketch4.addConstraint(Sketcher.Constraint("Block", 32))
sketch4.addConstraint(Sketcher.Constraint("Block", 33))
sketch4.addConstraint(Sketcher.Constraint("Block", 34))
sketch4.addConstraint(Sketcher.Constraint("Block", 35))
sketch4.addConstraint(Sketcher.Constraint("Block", 36))
sketch4.addConstraint(Sketcher.Constraint("Block", 37))
sketch4.addConstraint(Sketcher.Constraint("Block", 38))
sketch4.addConstraint(Sketcher.Constraint("Block", 39))
sketch4.addConstraint(Sketcher.Constraint("Block", 40))
sketch4.addConstraint(Sketcher.Constraint("Block", 41))
sketch4.addConstraint(Sketcher.Constraint("Block", 42))
sketch4.addConstraint(Sketcher.Constraint("Block", 43))
sketch4.addConstraint(Sketcher.Constraint("Block", 44))
sketch4.addConstraint(Sketcher.Constraint("Block", 45))
sketch4.addConstraint(Sketcher.Constraint("Block", 46))
sketch4.addConstraint(Sketcher.Constraint("Block", 47))
sketch4.addConstraint(Sketcher.Constraint("Block", 48))
sketch4.addConstraint(Sketcher.Constraint("Block", 49))
sketch4.addConstraint(Sketcher.Constraint("Block", 50))
sketch4.addConstraint(Sketcher.Constraint("Block", 51))
sketch4.addConstraint(Sketcher.Constraint("Block", 52))
sketch4.addConstraint(Sketcher.Constraint("Block", 53))
sketch4.addConstraint(Sketcher.Constraint("Block", 54))
sketch4.addConstraint(Sketcher.Constraint("Block", 55))
sketch4.addConstraint(Sketcher.Constraint("Block", 56))
sketch4.addConstraint(Sketcher.Constraint("Block", 57))
sketch4.addConstraint(Sketcher.Constraint("Block", 58))
sketch4.addConstraint(Sketcher.Constraint("Block", 59))
sketch4.addConstraint(Sketcher.Constraint("Block", 60))
sketch4.addConstraint(Sketcher.Constraint("Block", 61))
sketch4.addConstraint(Sketcher.Constraint("Block", 62))
sketch4.addConstraint(Sketcher.Constraint("Block", 63))
sketch4.addConstraint(Sketcher.Constraint("Block", 64))
sketch4.addConstraint(Sketcher.Constraint("Block", 65))
sketch4.addConstraint(Sketcher.Constraint("Block", 66))
sketch4.addConstraint(Sketcher.Constraint("Block", 67))
sketch4.addConstraint(Sketcher.Constraint("Block", 68))
pocket2 = body.newObject("PartDesign::Pocket", "Pocket001")
pocket2.Profile = sketch4
pocket2.Length = Q("0.025 in")

# Sketch on XY plane
sketch5 = body.newObject("Sketcher::SketchObject", "Sketch004")
sketch5.AttachmentSupport = (doc.getObject("XY_Plane"), [""])
sketch5.MapMode = "FlatFace"
sketch5.AttachmentOffset = App.Placement(Vector(0, 0, 2.75 * 25.4), App.Rotation())
sketch5.addGeometry(Part.BSplineCurve([Vector(9.686215, 73.705668, 0), Vector(12.68027, 73.705668, 0)], [2, 2], [0, 0.8847], False, 1, [1, 1], False), False)
sketch5.addGeometry(Part.BSplineCurve([Vector(12.68027, 73.705668, 0), Vector(12.68027, 74.821443, 0), Vector(12.68027, 78.042847, 0), Vector(10.385776, 78.042847, 0), Vector(10.036012, 77.497203, 0)], [3, 1, 1, 3], [0, 0.659391, 1.903757303, 2.540268607], False, 2, [1, 1, 1, 1, 1], False), False)
sketch5.addGeometry(Part.BSplineCurve([Vector(10.036012, 77.497203, 0), Vector(9.686215, 76.951558, 0), Vector(9.686215, 74.786465, 0), Vector(9.686215, 73.705668, 0)], [3, 1, 3], [0, 1, 1.996773021], False, 2, [1, 1, 1, 1], False), False)
sketch5.addGeometry(Part.BSplineCurve([Vector(5.544931, 73.705668, 0), Vector(8.196193, 73.705668, 0)], [2, 2], [0, 0.78341], False, 1, [1, 1], False), False)
sketch5.addGeometry(Part.BSplineCurve([Vector(8.196193, 73.705668, 0), Vector(8.196193, 74.657049, 0), Vector(8.196193, 76.384925, 0), Vector(8.049317, 76.804655, 0)], [3, 1, 3], [0, 0.562239, 1.021125369], False, 2, [1, 1, 1, 1], False), False)
sketch5.addGeometry(Part.BSplineCurve([Vector(8.049317, 76.804655, 0), Vector(7.90244, 77.231376, 0), Vector(7.489695, 77.455231, 0)], [3, 3], [0, 1], False, 2, [1, 1, 1], False), False)
sketch5.addGeometry(Part.BSplineCurve([Vector(7.489695, 77.455231, 0), Vector(7.195942, 77.63013, 0), Vector(6.055615, 77.63013, 0), Vector(5.803793, 77.07749, 0)], [3, 1, 3], [0, 1, 3.134126901], False, 2, [1, 1, 1, 1], False), False)
sketch5.addGeometry(Part.BSplineCurve([Vector(5.803793, 77.07749, 0), Vector(5.544897, 76.524847, 0), Vector(5.544897, 75.391584, 0)], [3, 3], [0, 1], False, 2, [1, 1, 1], False), False)
sketch5.addGeometry(Part.BSplineCurve([Vector(5.544897, 75.391584, 0), Vector(5.544931, 73.705668, 0)], [2, 2], [0, 0.498164], False, 1, [1, 1], False), False)
sketch5.addGeometry(Part.BSplineCurve([Vector(5.887688, 97.560147, 0), Vector(5.460967, 96.888581, 0), Vector(5.460967, 95.391557, 0), Vector(5.698881, 94.8599, 0)], [3, 1, 3], [0, 1, 1.711995901], False, 2, [1, 1, 1, 1], False), False)
sketch5.addGeometry(Part.BSplineCurve([Vector(5.698881, 94.8599, 0), Vector(5.929687, 94.335242, 0), Vector(6.377458, 93.950492, 0)], [3, 3], [0, 1], False, 2, [1, 1, 1], False), False)
sketch5.addGeometry(Part.BSplineCurve([Vector(6.377458, 93.950492, 0), Vector(6.825162, 93.572737, 0), Vector(7.524689, 93.348882, 0)], [3, 3], [0, 1], False, 2, [1, 1, 1], False), False)
sketch5.addGeometry(Part.BSplineCurve([Vector(7.524689, 93.348882, 0), Vector(8.217244, 93.132019, 0), Vector(9.959122, 93.132019, 0), Vector(10.665654, 93.348882, 0)], [3, 1, 3], [0, 1, 2.008037323], False, 2, [1, 1, 1, 1], False), False)
sketch5.addGeometry(Part.BSplineCurve([Vector(10.665654, 93.348882, 0), Vector(11.372186, 93.572751, 0), Vector(11.840906, 93.971478, 0)], [3, 3], [0, 1], False, 2, [1, 1, 1], False), False)
sketch5.addGeometry(Part.BSplineCurve([Vector(11.840906, 93.971478, 0), Vector(12.302587, 94.377213, 0), Vector(12.533427, 94.89488, 0)], [3, 3], [0, 1], False, 2, [1, 1, 1], False), False)
sketch5.addGeometry(Part.BSplineCurve([Vector(12.533427, 94.89488, 0), Vector(12.764233, 95.419538, 0), Vector(12.764233, 96.839614, 0), Vector(12.3655, 97.504181, 0)], [3, 1, 3], [0, 1, 2.280894834], False, 2, [1, 1, 1, 1], False), False)
sketch5.addGeometry(Part.BSplineCurve([Vector(12.3655, 97.504181, 0), Vector(11.966733, 98.175747, 0), Vector(11.134272, 98.567492, 0)], [3, 3], [0, 1], False, 2, [1, 1, 1], False), False)
sketch5.addGeometry(Part.BSplineCurve([Vector(11.134272, 98.567492, 0), Vector(10.301812, 98.966232, 0), Vector(7.958348, 98.966232, 0), Vector(6.307438, 98.238704, 0), Vector(5.887688, 97.560147, 0)], [3, 1, 1, 3], [0, 1, 1.925317721, 2.850635443], False, 2, [1, 1, 1, 1, 1], False), False)
sketch5.addGeometry(Part.BSplineCurve([Vector(5.62886, 104.940347, 0), Vector(12.589335, 104.940347, 0)], [2, 2], [0, 2.05672], False, 1, [1, 1], False), False)
sketch5.addGeometry(Part.BSplineCurve([Vector(12.589335, 104.940347, 0), Vector(12.589335, 105.727337, 0), Vector(12.589335, 107.031989, 0), Vector(12.562261, 107.325797, 0)], [3, 1, 3], [0, 0.465088, 0.771011839], False, 2, [1, 1, 1, 1], False), False)
sketch5.addGeometry(Part.BSplineCurve([Vector(12.562261, 107.325797, 0), Vector(12.535187, 107.619618, 0), Vector(12.422491, 107.934402, 0)], [3, 3], [0, 1], False, 2, [1, 1, 1], False), False)
sketch5.addGeometry(Part.BSplineCurve([Vector(12.422491, 107.934402, 0), Vector(12.310472, 108.249206, 0), Vector(12.107755, 108.480046, 0)], [3, 3], [0, 1], False, 2, [1, 1, 1], False), False)
sketch5.addGeometry(Part.BSplineCurve([Vector(12.107755, 108.480046, 0), Vector(11.226358, 109.522371, 0), Vector(7.553726, 109.522371, 0), Vector(6.798223, 109.06067, 0)], [3, 1, 3], [0, 1, 1.704535782], False, 2, [1, 1, 1, 1], False), False)
sketch5.addGeometry(Part.BSplineCurve([Vector(6.798223, 109.06067, 0), Vector(6.042721, 108.605964, 0), Vector(5.839835, 107.934402, 0)], [3, 3], [0, 1], False, 2, [1, 1, 1], False), False)
sketch5.addGeometry(Part.BSplineCurve([Vector(5.839835, 107.934402, 0), Vector(5.630011, 107.26284, 0), Vector(5.630011, 106.311456, 0)], [3, 3], [0, 1], False, 2, [1, 1, 1], False), False)
sketch5.addGeometry(Part.BSplineCurve([Vector(5.630011, 106.311456, 0), Vector(5.62886, 104.940347, 0)], [2, 2], [0, 0.405143], False, 1, [1, 1], False), False)
sketch5.addConstraint(Sketcher.Constraint("Block", 0))
sketch5.addConstraint(Sketcher.Constraint("Block", 1))
sketch5.addConstraint(Sketcher.Constraint("Block", 2))
sketch5.addConstraint(Sketcher.Constraint("Block", 3))
sketch5.addConstraint(Sketcher.Constraint("Block", 4))
sketch5.addConstraint(Sketcher.Constraint("Block", 5))
sketch5.addConstraint(Sketcher.Constraint("Block", 6))
sketch5.addConstraint(Sketcher.Constraint("Block", 7))
sketch5.addConstraint(Sketcher.Constraint("Block", 8))
sketch5.addConstraint(Sketcher.Constraint("Block", 9))
sketch5.addConstraint(Sketcher.Constraint("Block", 10))
sketch5.addConstraint(Sketcher.Constraint("Block", 11))
sketch5.addConstraint(Sketcher.Constraint("Block", 12))
sketch5.addConstraint(Sketcher.Constraint("Block", 13))
sketch5.addConstraint(Sketcher.Constraint("Block", 14))
sketch5.addConstraint(Sketcher.Constraint("Block", 15))
sketch5.addConstraint(Sketcher.Constraint("Block", 16))
sketch5.addConstraint(Sketcher.Constraint("Block", 17))
sketch5.addConstraint(Sketcher.Constraint("Block", 18))
sketch5.addConstraint(Sketcher.Constraint("Block", 19))
sketch5.addConstraint(Sketcher.Constraint("Block", 20))
sketch5.addConstraint(Sketcher.Constraint("Block", 21))
sketch5.addConstraint(Sketcher.Constraint("Block", 22))
sketch5.addConstraint(Sketcher.Constraint("Block", 23))
sketch5.addConstraint(Sketcher.Constraint("Block", 24))
sketch5.addConstraint(Sketcher.Constraint("Block", 25))
pad3 = body.newObject("PartDesign::Pad", "Pad002")
pad3.Profile = sketch5
pad3.Length = Q("0.025 in")
pad3.Reversed = True

doc.recompute()
